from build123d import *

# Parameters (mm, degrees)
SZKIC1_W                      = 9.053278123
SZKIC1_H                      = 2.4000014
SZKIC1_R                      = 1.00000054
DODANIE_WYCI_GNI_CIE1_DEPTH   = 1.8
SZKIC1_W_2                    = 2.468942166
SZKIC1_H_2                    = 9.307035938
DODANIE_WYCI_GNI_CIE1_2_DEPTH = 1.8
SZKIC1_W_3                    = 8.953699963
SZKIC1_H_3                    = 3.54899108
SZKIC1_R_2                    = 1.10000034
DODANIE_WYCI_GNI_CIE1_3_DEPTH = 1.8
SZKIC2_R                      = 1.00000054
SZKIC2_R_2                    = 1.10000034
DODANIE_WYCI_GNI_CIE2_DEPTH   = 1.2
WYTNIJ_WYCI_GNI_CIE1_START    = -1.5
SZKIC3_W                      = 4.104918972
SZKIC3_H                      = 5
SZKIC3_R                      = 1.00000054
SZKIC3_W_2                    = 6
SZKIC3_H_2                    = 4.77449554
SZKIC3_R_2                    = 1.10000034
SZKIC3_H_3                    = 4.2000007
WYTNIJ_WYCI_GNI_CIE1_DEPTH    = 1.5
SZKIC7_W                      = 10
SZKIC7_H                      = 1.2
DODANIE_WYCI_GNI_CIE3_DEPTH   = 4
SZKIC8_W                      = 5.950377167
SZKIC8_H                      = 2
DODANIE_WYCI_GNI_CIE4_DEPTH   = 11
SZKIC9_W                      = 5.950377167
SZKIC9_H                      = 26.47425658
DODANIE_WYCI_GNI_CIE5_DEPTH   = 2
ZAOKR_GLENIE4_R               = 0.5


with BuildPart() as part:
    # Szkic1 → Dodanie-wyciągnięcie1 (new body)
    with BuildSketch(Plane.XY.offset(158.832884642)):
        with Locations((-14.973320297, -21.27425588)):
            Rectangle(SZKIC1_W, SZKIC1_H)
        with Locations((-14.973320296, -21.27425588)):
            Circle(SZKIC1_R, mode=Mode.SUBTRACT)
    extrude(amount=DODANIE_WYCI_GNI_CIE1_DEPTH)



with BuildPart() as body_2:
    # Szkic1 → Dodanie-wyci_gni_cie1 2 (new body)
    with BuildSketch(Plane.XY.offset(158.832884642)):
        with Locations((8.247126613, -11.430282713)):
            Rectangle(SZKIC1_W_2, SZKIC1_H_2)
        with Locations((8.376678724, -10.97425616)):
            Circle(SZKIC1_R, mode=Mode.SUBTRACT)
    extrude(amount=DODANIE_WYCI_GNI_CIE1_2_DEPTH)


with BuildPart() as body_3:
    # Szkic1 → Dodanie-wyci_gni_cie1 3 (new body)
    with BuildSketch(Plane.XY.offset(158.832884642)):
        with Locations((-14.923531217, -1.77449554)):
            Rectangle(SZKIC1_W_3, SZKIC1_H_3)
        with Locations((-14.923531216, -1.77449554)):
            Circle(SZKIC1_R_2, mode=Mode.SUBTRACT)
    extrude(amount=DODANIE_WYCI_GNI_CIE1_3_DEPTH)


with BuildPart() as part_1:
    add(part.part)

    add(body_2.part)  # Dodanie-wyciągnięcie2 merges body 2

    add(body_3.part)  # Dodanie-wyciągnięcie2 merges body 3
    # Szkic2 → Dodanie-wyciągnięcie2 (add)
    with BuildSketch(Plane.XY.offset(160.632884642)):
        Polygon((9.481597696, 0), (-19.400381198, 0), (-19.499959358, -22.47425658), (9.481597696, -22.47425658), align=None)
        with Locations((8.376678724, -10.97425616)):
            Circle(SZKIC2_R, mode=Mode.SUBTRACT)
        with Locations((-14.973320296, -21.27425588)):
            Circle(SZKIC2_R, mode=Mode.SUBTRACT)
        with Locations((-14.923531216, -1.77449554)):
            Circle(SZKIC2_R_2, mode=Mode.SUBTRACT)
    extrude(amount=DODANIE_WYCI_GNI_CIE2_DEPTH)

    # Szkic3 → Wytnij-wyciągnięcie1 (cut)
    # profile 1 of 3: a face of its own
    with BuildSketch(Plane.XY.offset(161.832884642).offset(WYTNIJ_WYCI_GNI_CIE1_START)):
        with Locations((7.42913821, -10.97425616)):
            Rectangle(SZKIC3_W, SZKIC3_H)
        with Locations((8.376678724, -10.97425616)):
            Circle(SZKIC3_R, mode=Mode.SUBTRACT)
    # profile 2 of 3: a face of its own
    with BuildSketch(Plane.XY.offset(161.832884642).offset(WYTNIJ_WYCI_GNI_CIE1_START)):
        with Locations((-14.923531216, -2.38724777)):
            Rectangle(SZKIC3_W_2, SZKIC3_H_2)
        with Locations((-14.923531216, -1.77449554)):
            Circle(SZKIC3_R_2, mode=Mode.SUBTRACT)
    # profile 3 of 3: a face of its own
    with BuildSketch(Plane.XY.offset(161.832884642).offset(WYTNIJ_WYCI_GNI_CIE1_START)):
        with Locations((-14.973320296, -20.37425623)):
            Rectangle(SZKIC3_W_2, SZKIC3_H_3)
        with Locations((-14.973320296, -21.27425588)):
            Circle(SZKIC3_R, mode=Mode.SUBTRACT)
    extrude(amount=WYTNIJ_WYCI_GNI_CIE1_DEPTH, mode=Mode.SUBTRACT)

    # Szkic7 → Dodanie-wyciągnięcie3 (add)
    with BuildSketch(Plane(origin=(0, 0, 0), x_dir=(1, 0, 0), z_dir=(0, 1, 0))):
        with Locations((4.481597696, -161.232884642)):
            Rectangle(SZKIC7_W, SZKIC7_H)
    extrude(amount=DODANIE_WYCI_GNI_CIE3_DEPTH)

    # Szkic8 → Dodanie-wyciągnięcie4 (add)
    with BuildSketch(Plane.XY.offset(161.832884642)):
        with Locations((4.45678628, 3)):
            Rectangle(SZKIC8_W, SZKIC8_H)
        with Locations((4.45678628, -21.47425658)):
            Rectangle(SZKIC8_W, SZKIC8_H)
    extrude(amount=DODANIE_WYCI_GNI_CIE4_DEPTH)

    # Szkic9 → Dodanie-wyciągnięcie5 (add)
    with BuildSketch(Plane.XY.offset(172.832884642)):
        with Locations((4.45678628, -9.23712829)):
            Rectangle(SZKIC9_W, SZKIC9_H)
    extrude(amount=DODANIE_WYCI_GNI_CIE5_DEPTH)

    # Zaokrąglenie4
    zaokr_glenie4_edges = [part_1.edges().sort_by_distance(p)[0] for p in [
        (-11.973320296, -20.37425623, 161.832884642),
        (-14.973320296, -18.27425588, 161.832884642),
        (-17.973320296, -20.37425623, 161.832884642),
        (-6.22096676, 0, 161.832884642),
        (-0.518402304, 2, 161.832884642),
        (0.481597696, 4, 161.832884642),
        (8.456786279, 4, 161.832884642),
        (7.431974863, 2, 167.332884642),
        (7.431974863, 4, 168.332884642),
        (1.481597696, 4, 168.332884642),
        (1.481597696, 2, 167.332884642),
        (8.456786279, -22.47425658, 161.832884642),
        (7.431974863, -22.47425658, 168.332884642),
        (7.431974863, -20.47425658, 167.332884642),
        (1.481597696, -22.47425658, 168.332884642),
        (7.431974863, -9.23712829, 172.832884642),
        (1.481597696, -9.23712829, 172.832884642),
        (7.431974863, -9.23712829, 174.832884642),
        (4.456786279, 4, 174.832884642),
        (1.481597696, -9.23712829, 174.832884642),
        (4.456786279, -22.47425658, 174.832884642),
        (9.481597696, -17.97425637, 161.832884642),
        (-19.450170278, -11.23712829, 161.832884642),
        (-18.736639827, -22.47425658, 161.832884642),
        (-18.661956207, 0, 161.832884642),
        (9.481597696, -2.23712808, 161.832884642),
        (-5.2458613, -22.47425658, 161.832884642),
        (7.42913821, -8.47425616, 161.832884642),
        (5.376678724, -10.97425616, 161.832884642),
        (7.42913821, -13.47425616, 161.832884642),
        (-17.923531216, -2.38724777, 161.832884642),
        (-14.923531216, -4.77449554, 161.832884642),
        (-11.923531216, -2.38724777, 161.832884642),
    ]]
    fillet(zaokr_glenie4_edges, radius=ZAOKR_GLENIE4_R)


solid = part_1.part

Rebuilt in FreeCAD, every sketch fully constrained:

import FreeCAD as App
import Part
import Sketcher


def edges_at(feature, points):
    """Names of the edges that pass closest to the given points."""
    edges = feature.Shape.Edges
    near = lambda p: min(range(len(edges)), key=lambda i: edges[i].distToShape(Part.Vertex(*p))[0])
    return sorted({f"Edge{near(p) + 1}" for p in points})


def add_polygon(sketch, points):
    """Adds a closed chain of lines whose ends are joined by coincident constraints."""
    first, n = sketch.GeometryCount, len(points)
    for a, b in zip(points, points[1:] + points[:1]):
        sketch.addGeometry(Part.LineSegment(App.Vector(*a, 0), App.Vector(*b, 0)), False)
    for i in range(n):
        sketch.addConstraint(Sketcher.Constraint("Coincident", first + i, 2, first + (i + 1) % n, 1))

doc = App.newDocument("Part")
body = doc.addObject("PartDesign::Body", "Body")

# Sketch on XY plane
sketch1 = body.newObject("Sketcher::SketchObject", "Sketch")
sketch1.AttachmentSupport = (doc.getObject("XY_Plane"), [""])
sketch1.MapMode = "FlatFace"
sketch1.AttachmentOffset = App.Placement(App.Vector(0, 0, 158.832885), App.Rotation())
add_polygon(sketch1, [(-19.5, -20.1), (-19.5, -22.5), (-10.4, -22.5), (-10.4, -20.1)])  # lines 0-3
sketch1.addGeometry(Part.Circle(App.Vector(-15, -21.3, 0), App.Vector(0, 0, 1), 1), False)  # 4
sketch1.addConstraint(Sketcher.Constraint("Vertical", 0))
sketch1.addConstraint(Sketcher.Constraint("Horizontal", 1))
sketch1.addConstraint(Sketcher.Constraint("Vertical", 2))
sketch1.addConstraint(Sketcher.Constraint("Horizontal", 3))
sketch1.addConstraint(Sketcher.Constraint("Diameter", 4, 2.000001))
sketch1.addConstraint(Sketcher.Constraint("DistanceY", 0, 2, 0, 1, 2.400001))
sketch1.addConstraint(Sketcher.Constraint("DistanceY", 0, 2, 4, 3, 1.200001))
sketch1.addConstraint(Sketcher.Constraint("DistanceX", 1, 1, 1, 2, 9.053278))
sketch1.addConstraint(Sketcher.Constraint("DistanceX", 4, 3, -1, 1, 14.97332))
sketch1.addConstraint(Sketcher.Constraint("DistanceX", 0, 2, -1, 1, 19.499959))
sketch1.addConstraint(Sketcher.Constraint("DistanceY", 4, 3, -1, 1, 21.274256))
pad1 = body.newObject("PartDesign::Pad", "Pad")
pad1.Profile = sketch1
pad1.Length = 1.8
body2 = doc.addObject("PartDesign::Body", "Body001")

# Sketch on XY plane
sketch2 = body2.newObject("Sketcher::SketchObject", "Sketch001")
sketch2.AttachmentSupport = (doc.getObject("XY_Plane001"), [""])
sketch2.MapMode = "FlatFace"
sketch2.AttachmentOffset = App.Placement(App.Vector(0, 0, 158.832885), App.Rotation())
add_polygon(sketch2, [(7, -6.8), (7, -16.1), (9.5, -16.1), (9.5, -6.8)])  # lines 0-3
sketch2.addGeometry(Part.Circle(App.Vector(8.4, -11, 0), App.Vector(0, 0, 1), 1), False)  # 4
sketch2.addConstraint(Sketcher.Constraint("Vertical", 0))
sketch2.addConstraint(Sketcher.Constraint("Horizontal", 1))
sketch2.addConstraint(Sketcher.Constraint("Vertical", 2))
sketch2.addConstraint(Sketcher.Constraint("Horizontal", 3))
sketch2.addConstraint(Sketcher.Constraint("Diameter", 4, 2.000001))
sketch2.addConstraint(Sketcher.Constraint("DistanceY", 0, 2, -1, 1, 16.083801))
sketch2.addConstraint(Sketcher.Constraint("DistanceX", 1, 1, 1, 2, 2.468942))
sketch2.addConstraint(Sketcher.Constraint("DistanceY", 0, 2, 0, 1, 9.307036))
sketch2.addConstraint(Sketcher.Constraint("DistanceX", -1, 1, 4, 3, 8.376679))
sketch2.addConstraint(Sketcher.Constraint("DistanceX", 4, 3, 1, 2, 1.104919))
sketch2.addConstraint(Sketcher.Constraint("DistanceY", 4, 3, 2, 2, 4.197491))
pad2 = body2.newObject("PartDesign::Pad", "Pad001")
pad2.Profile = sketch2
pad2.Length = 1.8
body3 = doc.addObject("PartDesign::Body", "Body002")

# Sketch on XY plane
sketch3 = body3.newObject("Sketcher::SketchObject", "Sketch002")
sketch3.AttachmentSupport = (doc.getObject("XY_Plane002"), [""])
sketch3.MapMode = "FlatFace"
sketch3.AttachmentOffset = App.Placement(App.Vector(0, 0, 158.832885), App.Rotation())
add_polygon(sketch3, [(-19.4, 0), (-19.4, -3.5), (-10.4, -3.5), (-10.4, 0)])  # lines 0-3
sketch3.addGeometry(Part.Circle(App.Vector(-14.9, -1.8, 0), App.Vector(0, 0, 1), 1.1), False)  # 4
sketch3.addConstraint(Sketcher.Constraint("Vertical", 0))
sketch3.addConstraint(Sketcher.Constraint("Horizontal", 1))
sketch3.addConstraint(Sketcher.Constraint("Vertical", 2))
sketch3.addConstraint(Sketcher.Constraint("Horizontal", 3))
sketch3.addConstraint(Sketcher.Constraint("PointOnObject", 2, 2, -1))
sketch3.addConstraint(Sketcher.Constraint("Diameter", 4, 2.200001))
sketch3.addConstraint(Sketcher.Constraint("DistanceX", 1, 1, 1, 2, 8.9537))
sketch3.addConstraint(Sketcher.Constraint("DistanceY", 0, 2, 0, 1, 3.548991))
sketch3.addConstraint(Sketcher.Constraint("DistanceX", 4, 3, -1, 1, 14.923531))
sketch3.addConstraint(Sketcher.Constraint("DistanceX", 0, 2, -1, 1, 19.400381))
sketch3.addConstraint(Sketcher.Constraint("DistanceY", 4, 3, -1, 1, 1.774496))
pad3 = body3.newObject("PartDesign::Pad", "Pad002")
pad3.Profile = sketch3
pad3.Length = 1.8
body.AllowCompound = True
doc.recompute()

boolean = body.newObject("PartDesign::Boolean", "Boolean")
boolean.Type = "Fuse"
boolean.addObjects([body2])
doc.recompute()

boolean2 = body.newObject("PartDesign::Boolean", "Boolean001")
boolean2.Type = "Fuse"
boolean2.addObjects([body3])

# Sketch on XY plane
sketch4 = body.newObject("Sketcher::SketchObject", "Sketch003")
sketch4.AttachmentSupport = (doc.getObject("XY_Plane"), [""])
sketch4.MapMode = "FlatFace"
sketch4.AttachmentOffset = App.Placement(App.Vector(0, 0, 160.632885), App.Rotation())
add_polygon(sketch4, [(9.5, 0), (-19.4, 0), (-19.5, -22.5), (9.5, -22.5)])  # lines 0-3
sketch4.addGeometry(Part.Circle(App.Vector(-15, -21.3, 0), App.Vector(0, 0, 1), 1), False)  # 4
sketch4.addGeometry(Part.Circle(App.Vector(-14.9, -1.8, 0), App.Vector(0, 0, 1), 1.1), False)  # 5
sketch4.addGeometry(Part.Circle(App.Vector(8.4, -11, 0), App.Vector(0, 0, 1), 1), False)  # 6
sketch4.addConstraint(Sketcher.Constraint("Horizontal", 0))
sketch4.addConstraint(Sketcher.Constraint("Horizontal", 2))
sketch4.addConstraint(Sketcher.Constraint("Vertical", 3))
sketch4.addConstraint(Sketcher.Constraint("Equal", 4, 6))
sketch4.addConstraint(Sketcher.Constraint("PointOnObject", 0, 2, -1))
sketch4.addConstraint(Sketcher.Constraint("Diameter", 4, 2.000001))
sketch4.addConstraint(Sketcher.Constraint("Diameter", 5, 2.200001))
sketch4.addConstraint(Sketcher.Constraint("DistanceY", 4, 3, 6, 3, 10.3))
sketch4.addConstraint(Sketcher.Constraint("DistanceY", 1, 2, 4, 3, 1.200001))
sketch4.addConstraint(Sketcher.Constraint("DistanceX", 4, 3, 6, 3, 23.349999))
sketch4.addConstraint(Sketcher.Constraint("DistanceX", 0, 2, 0, 1, 28.881979))
sketch4.addConstraint(Sketcher.Constraint("DistanceX", 2, 1, 2, 2, 28.981557))
sketch4.addConstraint(Sketcher.Constraint("DistanceY", 3, 1, 3, 2, 22.474257))
sketch4.addConstraint(Sketcher.Constraint("DistanceX", 4, 3, -1, 1, 14.97332))
sketch4.addConstraint(Sketcher.Constraint("DistanceX", 5, 3, -1, 1, 14.923531))
sketch4.addConstraint(Sketcher.Constraint("DistanceX", 0, 2, -1, 1, 19.400381))
sketch4.addConstraint(Sketcher.Constraint("DistanceY", 4, 3, 5, 3, 19.49976))
pad4 = body.newObject("PartDesign::Pad", "Pad003")
pad4.Profile = sketch4
pad4.Length = 1.2

# Sketch on XY plane
sketch5 = body.newObject("Sketcher::SketchObject", "Sketch004")
sketch5.AttachmentSupport = (doc.getObject("XY_Plane"), [""])
sketch5.MapMode = "FlatFace"
sketch5.AttachmentOffset = App.Placement(App.Vector(0, 0, 160.332885), App.Rotation())
add_polygon(sketch5, [(5.4, -8.5), (5.4, -13.5), (9.5, -13.5), (9.5, -8.5)])  # lines 0-3
sketch5.addGeometry(Part.Circle(App.Vector(8.4, -11, 0), App.Vector(0, 0, 1), 1), False)  # 4
add_polygon(sketch5, [(-17.9, 0), (-17.9, -4.8), (-11.9, -4.8), (-11.9, 0)])  # lines 5-8
sketch5.addGeometry(Part.Circle(App.Vector(-14.9, -1.8, 0), App.Vector(0, 0, 1), 1.1), False)  # 9
add_polygon(sketch5, [(-18, -18.3), (-18, -22.5), (-12, -22.5), (-12, -18.3)])  # lines 10-13
sketch5.addGeometry(Part.Circle(App.Vector(-15, -21.3, 0), App.Vector(0, 0, 1), 1), False)  # 14
sketch5.addConstraint(Sketcher.Constraint("Vertical", 0))
sketch5.addConstraint(Sketcher.Constraint("Horizontal", 1))
sketch5.addConstraint(Sketcher.Constraint("Vertical", 2))
sketch5.addConstraint(Sketcher.Constraint("Horizontal", 3))
sketch5.addConstraint(Sketcher.Constraint("Vertical", 5))
sketch5.addConstraint(Sketcher.Constraint("Horizontal", 6))
sketch5.addConstraint(Sketcher.Constraint("Vertical", 7))
sketch5.addConstraint(Sketcher.Constraint("Horizontal", 8))
sketch5.addConstraint(Sketcher.Constraint("Vertical", 10))
sketch5.addConstraint(Sketcher.Constraint("Horizontal", 11))
sketch5.addConstraint(Sketcher.Constraint("Vertical", 12))
sketch5.addConstraint(Sketcher.Constraint("Horizontal", 13))
sketch5.addConstraint(Sketcher.Constraint("Equal", 4, 14))
sketch5.addConstraint(Sketcher.Constraint("PointOnObject", 7, 2, -1))
sketch5.addConstraint(Sketcher.Constraint("Equal", 8, 11))
sketch5.addConstraint(Sketcher.Constraint("Diameter", 4, 2.000001))
sketch5.addConstraint(Sketcher.Constraint("Diameter", 9, 2.200001))
sketch5.addConstraint(Sketcher.Constraint("DistanceX", 6, 1, 6, 2, 6.0))
sketch5.addConstraint(Sketcher.Constraint("DistanceY", 0, 2, 0, 1, 5.0))
sketch5.addConstraint(Sketcher.Constraint("DistanceY", 10, 2, 10, 1, 4.200001))
sketch5.addConstraint(Sketcher.Constraint("DistanceX", 0, 2, 4, 3, 3.0))
sketch5.addConstraint(Sketcher.Constraint("DistanceX", 5, 2, 9, 3, 3.0))
sketch5.addConstraint(Sketcher.Constraint("DistanceY", 5, 2, 9, 3, 3.0))
sketch5.addConstraint(Sketcher.Constraint("DistanceX", 10, 2, 14, 3, 3.0))
sketch5.addConstraint(Sketcher.Constraint("DistanceY", 11, 2, 0, 2, 9.0))
sketch5.addConstraint(Sketcher.Constraint("DistanceY", 14, 3, 12, 2, 3.0))
sketch5.addConstraint(Sketcher.Constraint("DistanceY", 14, 3, 4, 3, 10.3))
sketch5.addConstraint(Sketcher.Constraint("DistanceX", 14, 3, 4, 3, 23.349999))
sketch5.addConstraint(Sketcher.Constraint("DistanceX", 1, 1, 1, 2, 4.104919))
sketch5.addConstraint(Sketcher.Constraint("DistanceY", 5, 2, 5, 1, 4.774496))
sketch5.addConstraint(Sketcher.Constraint("DistanceX", -1, 1, 4, 3, 8.376679))
sketch5.addConstraint(Sketcher.Constraint("DistanceX", 9, 3, -1, 1, 14.923531))
sketch5.addConstraint(Sketcher.Constraint("DistanceY", 4, 3, 9, 3, 9.199761))
pocket1 = body.newObject("PartDesign::Pocket", "Pocket")
pocket1.Profile = sketch5
pocket1.Length = 1.5
pocket1.Reversed = True

# Sketch on XZ plane
sketch6 = body.newObject("Sketcher::SketchObject", "Sketch005")
sketch6.AttachmentSupport = (doc.getObject("XZ_Plane"), [""])
sketch6.MapMode = "FlatFace"
add_polygon(sketch6, [(-0.5, 160.6), (-0.5, 161.8), (9.5, 161.8), (9.5, 160.6)])  # lines 0-3
sketch6.addConstraint(Sketcher.Constraint("Vertical", 0))
sketch6.addConstraint(Sketcher.Constraint("Horizontal", 1))
sketch6.addConstraint(Sketcher.Constraint("Vertical", 2))
sketch6.addConstraint(Sketcher.Constraint("Horizontal", 3))
sketch6.addConstraint(Sketcher.Constraint("DistanceX", 1, 1, 1, 2, 10.0))
sketch6.addConstraint(Sketcher.Constraint("DistanceY", 0, 1, 0, 2, 1.2))
sketch6.addConstraint(Sketcher.Constraint("DistanceX", 0, 2, -1, 1, 0.518402))
sketch6.addConstraint(Sketcher.Constraint("DistanceY", -1, 1, 0, 2, 161.832885))
pad5 = body.newObject("PartDesign::Pad", "Pad004")
pad5.Profile = sketch6
pad5.Length = 4
pad5.Reversed = True

# Sketch on XY plane
sketch7 = body.newObject("Sketcher::SketchObject", "Sketch006")
sketch7.AttachmentSupport = (doc.getObject("XY_Plane"), [""])
sketch7.MapMode = "FlatFace"
sketch7.AttachmentOffset = App.Placement(App.Vector(0, 0, 161.832885), App.Rotation())
add_polygon(sketch7, [(1.5, 4), (1.5, 2), (7.4, 2), (7.4, 4)])  # lines 0-3
add_polygon(sketch7, [(1.5, -20.5), (1.5, -22.5), (7.4, -22.5), (7.4, -20.5)])  # lines 4-7
sketch7.addConstraint(Sketcher.Constraint("Vertical", 0))
sketch7.addConstraint(Sketcher.Constraint("Horizontal", 1))
sketch7.addConstraint(Sketcher.Constraint("Vertical", 2))
sketch7.addConstraint(Sketcher.Constraint("Horizontal", 3))
sketch7.addConstraint(Sketcher.Constraint("Vertical", 4))
sketch7.addConstraint(Sketcher.Constraint("Horizontal", 5))
sketch7.addConstraint(Sketcher.Constraint("Vertical", 6))
sketch7.addConstraint(Sketcher.Constraint("Horizontal", 7))
sketch7.addConstraint(Sketcher.Constraint("Vertical", 3, 2, 4, 2))
sketch7.addConstraint(Sketcher.Constraint("Vertical", 2, 2, 5, 2))
sketch7.addConstraint(Sketcher.Constraint("Equal", 2, 4))
sketch7.addConstraint(Sketcher.Constraint("DistanceY", 0, 2, 0, 1, 2.0))
sketch7.addConstraint(Sketcher.Constraint("DistanceY", -1, 1, 0, 2, 2.0))
sketch7.addConstraint(Sketcher.Constraint("DistanceX", 1, 1, 1, 2, 5.950377))
sketch7.addConstraint(Sketcher.Constraint("DistanceX", -1, 1, 0, 2, 1.481598))
sketch7.addConstraint(Sketcher.Constraint("DistanceY", 4, 2, -1, 1, 22.474257))
pad6 = body.newObject("PartDesign::Pad", "Pad005")
pad6.Profile = sketch7
pad6.Length = 11

# Sketch on XY plane
sketch8 = body.newObject("Sketcher::SketchObject", "Sketch007")
sketch8.AttachmentSupport = (doc.getObject("XY_Plane"), [""])
sketch8.MapMode = "FlatFace"
sketch8.AttachmentOffset = App.Placement(App.Vector(0, 0, 172.832885), App.Rotation())
add_polygon(sketch8, [(1, 4), (1, -22), (7, -22), (7, 4)])  # lines 0-3
sketch8.addConstraint(Sketcher.Constraint("Vertical", 0))
sketch8.addConstraint(Sketcher.Constraint("Horizontal", 1))
sketch8.addConstraint(Sketcher.Constraint("Vertical", 2))
sketch8.addConstraint(Sketcher.Constraint("Horizontal", 3))
sketch8.addConstraint(Sketcher.Constraint("DistanceY", -1, 1, 2, 2, 4.0))
sketch8.addConstraint(Sketcher.Constraint("DistanceX", 1, 1, 1, 2, 5.950377))
sketch8.addConstraint(Sketcher.Constraint("DistanceY", 0, 2, 0, 1, 26.474257))
sketch8.addConstraint(Sketcher.Constraint("DistanceX", -1, 1, 0, 2, 1.481598))
pad7 = body.newObject("PartDesign::Pad", "Pad006")
pad7.Profile = sketch8
pad7.Length = 2
doc.recompute()

fillet = body.newObject("PartDesign::Fillet", "Fillet")
fillet.Base = (pad7, edges_at(pad7, [
    (-11.973, -20.374, 161.833),
    (-14.973, -18.274, 161.833),
    (-17.973, -20.374, 161.833),
    (-6.221, 0, 161.833),
    (-0.518, 2, 161.833),
    (0.482, 4, 161.833),
    (8.457, 4, 161.833),
    (7.432, 2, 167.333),
    (7.432, 4, 168.333),
    (1.482, 4, 168.333),
    (1.482, 2, 167.333),
    (8.457, -22.474, 161.833),
    (7.432, -22.474, 168.333),
    (7.432, -20.474, 167.333),
    (1.482, -22.474, 168.333),
    (7.432, -9.237, 172.833),
    (1.482, -9.237, 172.833),
    (7.432, -9.237, 174.833),
    (4.457, 4, 174.833),
    (1.482, -9.237, 174.833),
    (4.457, -22.474, 174.833),
    (9.482, -17.974, 161.833),
    (-19.45, -11.237, 161.833),
    (-18.737, -22.474, 161.833),
    (-18.662, 0, 161.833),
    (9.482, -2.237, 161.833),
    (-5.246, -22.474, 161.833),
    (7.429, -8.474, 161.833),
    (5.377, -10.974, 161.833),
    (7.429, -13.474, 161.833),
    (-17.924, -2.387, 161.833),
    (-14.924, -4.774, 161.833),
    (-11.924, -2.387, 161.833),
]))
fillet.Radius = 0.5

doc.recompute()
